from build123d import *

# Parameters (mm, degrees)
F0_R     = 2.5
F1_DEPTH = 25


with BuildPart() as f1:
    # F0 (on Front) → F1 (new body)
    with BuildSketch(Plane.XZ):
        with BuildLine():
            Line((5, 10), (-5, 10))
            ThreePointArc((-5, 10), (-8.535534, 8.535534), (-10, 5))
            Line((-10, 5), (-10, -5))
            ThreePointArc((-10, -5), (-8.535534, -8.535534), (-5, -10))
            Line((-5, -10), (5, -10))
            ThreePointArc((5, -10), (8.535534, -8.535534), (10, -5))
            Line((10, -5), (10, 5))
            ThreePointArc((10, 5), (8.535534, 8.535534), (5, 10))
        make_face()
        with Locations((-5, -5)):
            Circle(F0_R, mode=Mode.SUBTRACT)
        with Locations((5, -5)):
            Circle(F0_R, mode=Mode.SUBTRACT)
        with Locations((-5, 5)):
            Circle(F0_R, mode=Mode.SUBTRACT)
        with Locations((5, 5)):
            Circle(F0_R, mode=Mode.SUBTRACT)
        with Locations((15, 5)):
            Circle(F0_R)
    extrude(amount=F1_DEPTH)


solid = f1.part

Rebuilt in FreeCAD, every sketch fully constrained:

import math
import FreeCAD as App
import Part
import Sketcher
from FreeCAD import Vector
Q = App.Units.Quantity

doc = App.newDocument("Part")
params = doc.addObject("Spreadsheet::Sheet", "Params")
for row, (alias, value) in enumerate([
    ("sketch1_diameter", "5 mm"),
    ("sketch1_radius", "5 mm"),
    ("sketch1_width", "10 mm"),
    ("pad1_length", "25 mm"),
], start=1):
    params.set(f"A{row}", alias)
    params.set(f"B{row}", "=" + value)
    params.setAlias(f"B{row}", alias)

body = doc.addObject("PartDesign::Body", "Body")
body.AllowCompound = True

# Sketch on XZ plane
sketch1 = body.newObject("Sketcher::SketchObject", "Sketch")
sketch1.AttachmentSupport = (doc.getObject("XZ_Plane"), [""])
sketch1.MapMode = "FlatFace"
sketch1.addGeometry([
    Part.LineSegment(Vector(5, 10, 0), Vector(-5, 10, 0)),  # 0
    Part.ArcOfCircle(Part.Circle(Vector(-5, 5, 0), Vector(0, 0, 1), 5), math.radians(90), math.radians(180)),  # 1
    Part.LineSegment(Vector(-10, 5, 0), Vector(-10, -5, 0)),  # 2
    Part.ArcOfCircle(Part.Circle(Vector(-5, -5, 0), Vector(0, 0, 1), 5), math.radians(180), math.radians(270)),  # 3
    Part.LineSegment(Vector(-5, -10, 0), Vector(5, -10, 0)),  # 4
    Part.ArcOfCircle(Part.Circle(Vector(5, -5, 0), Vector(0, 0, 1), 5), math.radians(-90), math.radians(0)),  # 5
    Part.LineSegment(Vector(10, -5, 0), Vector(10, 5, 0)),  # 6
    Part.ArcOfCircle(Part.Circle(Vector(5, 5, 0), Vector(0, 0, 1), 5), math.radians(0), math.radians(90)),  # 7
    Part.Circle(Vector(-5, -5, 0), Vector(0, 0, 1), 2.5),  # 8
    Part.Circle(Vector(5, -5, 0), Vector(0, 0, 1), 2.5),  # 9
    Part.Circle(Vector(-5, 5, 0), Vector(0, 0, 1), 2.5),  # 10
    Part.Circle(Vector(5, 5, 0), Vector(0, 0, 1), 2.5),  # 11
    Part.Circle(Vector(15, 5, 0), Vector(0, 0, 1), 2.5),  # 12
], False)
sketch1.addConstraint([
    Sketcher.Constraint("Tangent", 0, 2, 1, 1),
    Sketcher.Constraint("Tangent", 1, 2, 2, 1),
    Sketcher.Constraint("Tangent", 2, 2, 3, 1),
    Sketcher.Constraint("Tangent", 3, 2, 4, 1),
    Sketcher.Constraint("Tangent", 4, 2, 5, 1),
    Sketcher.Constraint("Tangent", 5, 2, 6, 1),
    Sketcher.Constraint("Tangent", 6, 2, 7, 1),
    Sketcher.Constraint("Tangent", 7, 2, 0, 1),
    Sketcher.Constraint("Horizontal", 0),
    Sketcher.Constraint("Vertical", 2),
    Sketcher.Constraint("Horizontal", 4),
    Sketcher.Constraint("Vertical", 6),
    Sketcher.Constraint("Coincident", 8, 3, 3, 3),
    Sketcher.Constraint("Coincident", 9, 3, 5, 3),
    Sketcher.Constraint("Coincident", 10, 3, 1, 3),
    Sketcher.Constraint("Coincident", 11, 3, 7, 3),
    Sketcher.Constraint("Equal", 1, 3),
    Sketcher.Constraint("Equal", 3, 5),
    Sketcher.Constraint("Equal", 5, 7),
    Sketcher.Constraint("Equal", 8, 9),
    Sketcher.Constraint("Equal", 9, 10),
    Sketcher.Constraint("Equal", 10, 11),
    Sketcher.Constraint("Equal", 11, 12),
    Sketcher.Constraint("Symmetric", 1, 3, 5, 3, -1, 1),
    Sketcher.Constraint("Horizontal", 11, 3, 12, 3),
    Sketcher.Constraint("Equal", 4, 2),
    Sketcher.Constraint("Diameter", 8, Q("5 mm")),
    Sketcher.Constraint("Radius", 1, Q("5 mm")),
    Sketcher.Constraint("DistanceX", 0, 2, 0, 1, Q("10 mm")),
    Sketcher.Constraint("DistanceX", -1, 1, 12, 3, Q("15 mm")),
])
sketch1.setExpression("Constraints[26]", "Params.sketch1_diameter")
sketch1.setExpression("Constraints[27]", "Params.sketch1_radius")
sketch1.setExpression("Constraints[28]", "Params.sketch1_width")
pad1 = body.newObject("PartDesign::Pad", "Pad")
pad1.Profile = sketch1
pad1.setExpression("Length", "Params.pad1_length")

doc.recompute()
